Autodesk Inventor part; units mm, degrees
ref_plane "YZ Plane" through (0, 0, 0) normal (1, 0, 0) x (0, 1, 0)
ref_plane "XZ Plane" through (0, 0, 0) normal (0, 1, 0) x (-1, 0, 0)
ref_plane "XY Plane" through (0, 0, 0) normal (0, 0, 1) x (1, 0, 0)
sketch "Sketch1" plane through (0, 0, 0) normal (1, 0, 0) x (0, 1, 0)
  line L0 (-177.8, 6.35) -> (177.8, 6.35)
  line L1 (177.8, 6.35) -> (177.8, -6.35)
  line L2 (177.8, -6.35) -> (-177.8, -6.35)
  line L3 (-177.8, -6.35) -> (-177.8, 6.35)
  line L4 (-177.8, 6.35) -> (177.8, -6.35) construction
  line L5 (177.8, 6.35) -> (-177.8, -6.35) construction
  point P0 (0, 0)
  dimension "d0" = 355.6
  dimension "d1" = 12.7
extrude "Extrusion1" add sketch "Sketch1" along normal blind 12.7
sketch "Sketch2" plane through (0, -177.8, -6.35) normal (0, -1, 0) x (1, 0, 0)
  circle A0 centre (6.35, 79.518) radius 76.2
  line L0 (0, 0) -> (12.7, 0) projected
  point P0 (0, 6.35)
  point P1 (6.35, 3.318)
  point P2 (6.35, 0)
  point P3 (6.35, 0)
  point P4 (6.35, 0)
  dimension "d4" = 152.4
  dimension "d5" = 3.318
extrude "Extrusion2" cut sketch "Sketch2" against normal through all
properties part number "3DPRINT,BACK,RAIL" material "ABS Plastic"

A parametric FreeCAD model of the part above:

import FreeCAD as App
import Part
import Sketcher
Q = App.Units.Quantity

doc = App.newDocument("Part")
body = doc.addObject("PartDesign::Body", "Body")

# Sketch on YZ plane
sketch1 = body.newObject("Sketcher::SketchObject", "Sketch")
sketch1.AttachmentSupport = (doc.getObject("YZ_Plane"), [""])
sketch1.MapMode = "FlatFace"
sketch1.addGeometry(Part.LineSegment(App.Vector(178, 6, 0), App.Vector(-178, 6, 0)), False)
sketch1.addGeometry(Part.LineSegment(App.Vector(-178, 6, 0), App.Vector(-178, -6, 0)), False)
sketch1.addGeometry(Part.LineSegment(App.Vector(-178, -6, 0), App.Vector(178, -6, 0)), False)
sketch1.addGeometry(Part.LineSegment(App.Vector(178, -6, 0), App.Vector(178, 6, 0)), False)
sketch1.addConstraint(Sketcher.Constraint("Coincident", 0, 2, 1, 1))
sketch1.addConstraint(Sketcher.Constraint("Coincident", 1, 2, 2, 1))
sketch1.addConstraint(Sketcher.Constraint("Coincident", 2, 2, 3, 1))
sketch1.addConstraint(Sketcher.Constraint("Coincident", 3, 2, 0, 1))
sketch1.addConstraint(Sketcher.Constraint("Horizontal", 0))
sketch1.addConstraint(Sketcher.Constraint("Vertical", 1))
sketch1.addConstraint(Sketcher.Constraint("Horizontal", 2))
sketch1.addConstraint(Sketcher.Constraint("Vertical", 3))
sketch1.addConstraint(Sketcher.Constraint("Symmetric", 0, 2, 2, 2, -1, 1))
sketch1.addConstraint(Sketcher.Constraint("DistanceX", 0, 2, 0, 1, Q("14 in")))
sketch1.addConstraint(Sketcher.Constraint("DistanceY", 1, 2, 1, 1, Q("0.5 in")))
pad1 = body.newObject("PartDesign::Pad", "Pad")
pad1.Profile = sketch1
pad1.Length = Q("0.5 in")

# Sketch on XZ plane
sketch2 = body.newObject("Sketcher::SketchObject", "Sketch001")
sketch2.AttachmentSupport = (doc.getObject("XZ_Plane"), [""])
sketch2.MapMode = "FlatFace"
sketch2.AttachmentOffset = App.Placement(App.Vector(0, 0, 7 * 25.4), App.Rotation())
sketch2.addGeometry(Part.Circle(App.Vector(6, 73, 0), App.Vector(0, 0, 1), 76), False)
sketch2.addConstraint(Sketcher.Constraint("Diameter", 0, Q("6 in")))
sketch2.addConstraint(Sketcher.Constraint("DistanceX", -1, 1, 0, 3, Q("0.25 in")))
sketch2.addConstraint(Sketcher.Constraint("DistanceY", -1, 1, 0, 3, 73.168))
pocket1 = body.newObject("PartDesign::Pocket", "Pocket")
pocket1.Profile = sketch2
pocket1.Type = "ThroughAll"

doc.recompute()
